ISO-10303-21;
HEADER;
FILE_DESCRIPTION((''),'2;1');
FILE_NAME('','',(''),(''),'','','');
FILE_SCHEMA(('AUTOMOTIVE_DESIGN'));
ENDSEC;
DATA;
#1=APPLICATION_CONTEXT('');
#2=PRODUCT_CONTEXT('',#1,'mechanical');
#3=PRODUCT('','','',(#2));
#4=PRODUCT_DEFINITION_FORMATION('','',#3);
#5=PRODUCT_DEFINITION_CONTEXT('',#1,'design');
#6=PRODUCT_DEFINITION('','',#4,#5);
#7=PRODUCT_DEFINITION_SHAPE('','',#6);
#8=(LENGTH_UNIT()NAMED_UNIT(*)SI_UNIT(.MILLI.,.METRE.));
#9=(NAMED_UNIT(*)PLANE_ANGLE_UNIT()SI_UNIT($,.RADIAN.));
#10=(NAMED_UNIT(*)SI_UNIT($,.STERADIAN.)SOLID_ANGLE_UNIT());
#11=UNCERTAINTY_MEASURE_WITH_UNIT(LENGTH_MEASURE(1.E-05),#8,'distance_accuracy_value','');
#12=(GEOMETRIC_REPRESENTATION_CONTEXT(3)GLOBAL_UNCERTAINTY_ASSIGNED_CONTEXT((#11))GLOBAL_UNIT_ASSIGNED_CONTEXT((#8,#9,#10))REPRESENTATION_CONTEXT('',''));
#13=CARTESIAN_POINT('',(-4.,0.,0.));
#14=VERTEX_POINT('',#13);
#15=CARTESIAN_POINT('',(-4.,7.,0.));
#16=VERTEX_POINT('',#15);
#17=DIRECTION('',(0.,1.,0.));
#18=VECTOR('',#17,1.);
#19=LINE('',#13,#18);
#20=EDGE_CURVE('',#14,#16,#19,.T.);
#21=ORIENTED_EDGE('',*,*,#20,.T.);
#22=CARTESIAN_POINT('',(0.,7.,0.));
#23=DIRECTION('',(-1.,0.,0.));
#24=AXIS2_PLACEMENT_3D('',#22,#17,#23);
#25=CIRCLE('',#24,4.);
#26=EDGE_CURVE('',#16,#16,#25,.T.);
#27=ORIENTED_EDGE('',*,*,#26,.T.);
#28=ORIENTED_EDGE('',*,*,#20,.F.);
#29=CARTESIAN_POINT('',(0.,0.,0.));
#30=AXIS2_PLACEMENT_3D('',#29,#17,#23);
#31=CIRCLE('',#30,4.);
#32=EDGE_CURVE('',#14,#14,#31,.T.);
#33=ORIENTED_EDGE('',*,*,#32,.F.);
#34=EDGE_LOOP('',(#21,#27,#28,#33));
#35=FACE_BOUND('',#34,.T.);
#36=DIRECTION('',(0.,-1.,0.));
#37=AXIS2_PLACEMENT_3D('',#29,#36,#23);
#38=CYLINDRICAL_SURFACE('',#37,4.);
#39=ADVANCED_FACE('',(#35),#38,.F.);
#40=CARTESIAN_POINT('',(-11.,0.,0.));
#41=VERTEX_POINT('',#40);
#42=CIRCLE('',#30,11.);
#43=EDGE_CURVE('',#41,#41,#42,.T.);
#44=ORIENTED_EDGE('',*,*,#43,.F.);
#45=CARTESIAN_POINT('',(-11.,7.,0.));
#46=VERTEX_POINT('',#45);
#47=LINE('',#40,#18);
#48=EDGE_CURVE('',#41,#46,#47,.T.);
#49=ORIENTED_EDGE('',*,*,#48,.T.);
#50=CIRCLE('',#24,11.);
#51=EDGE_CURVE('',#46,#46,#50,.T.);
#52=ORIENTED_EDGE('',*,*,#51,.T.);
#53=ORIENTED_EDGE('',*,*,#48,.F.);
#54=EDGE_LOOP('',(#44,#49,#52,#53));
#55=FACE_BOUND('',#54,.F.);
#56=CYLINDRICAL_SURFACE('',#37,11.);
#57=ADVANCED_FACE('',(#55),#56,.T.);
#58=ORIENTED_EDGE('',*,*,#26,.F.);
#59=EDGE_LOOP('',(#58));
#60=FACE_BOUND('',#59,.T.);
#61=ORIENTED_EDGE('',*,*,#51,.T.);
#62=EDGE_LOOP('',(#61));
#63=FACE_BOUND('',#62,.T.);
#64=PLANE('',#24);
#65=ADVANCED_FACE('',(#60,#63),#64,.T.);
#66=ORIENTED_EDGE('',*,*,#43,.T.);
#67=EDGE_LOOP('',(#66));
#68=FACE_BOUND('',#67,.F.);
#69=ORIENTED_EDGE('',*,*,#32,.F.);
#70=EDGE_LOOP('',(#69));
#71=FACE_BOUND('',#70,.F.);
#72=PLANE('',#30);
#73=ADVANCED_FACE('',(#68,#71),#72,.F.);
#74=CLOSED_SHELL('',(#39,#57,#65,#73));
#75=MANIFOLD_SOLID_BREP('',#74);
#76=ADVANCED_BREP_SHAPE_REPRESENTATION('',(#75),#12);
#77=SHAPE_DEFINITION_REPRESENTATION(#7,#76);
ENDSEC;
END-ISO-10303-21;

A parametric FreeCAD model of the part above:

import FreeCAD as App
import Part
import Sketcher

V = App.Vector
Q = App.Units.Quantity

doc = App.newDocument("Part")
body = doc.addObject("PartDesign::Body", "Body")

# Sketch on XZ plane
sketch1 = doc.addObject("Sketcher::SketchObject", "Sketch")
body.addObject(sketch1)
sketch1.AttachmentSupport = (doc.XZ_Plane, [""])
sketch1.MapMode = "FlatFace"
sketch1.addGeometry(Part.Circle(V(0, 0, 0), V(0, 0, 1), 11), False)
sketch1.addGeometry(Part.Circle(V(0, 0, 0), V(0, 0, 1), 4), False)
sketch1.addConstraint(Sketcher.Constraint("Coincident", 0, 3, -1, 1))
sketch1.addConstraint(Sketcher.Constraint("Coincident", 1, 3, -1, 1))
sketch1.addConstraint(Sketcher.Constraint("Diameter", 0, Q("22 mm")))
sketch1.addConstraint(Sketcher.Constraint("Diameter", 1, Q("8 mm")))
pad1 = doc.addObject("PartDesign::Pad", "Pad")
body.addObject(pad1)
pad1.Profile = sketch1
pad1.Length = 7
pad1.Reversed = True

doc.recompute()
